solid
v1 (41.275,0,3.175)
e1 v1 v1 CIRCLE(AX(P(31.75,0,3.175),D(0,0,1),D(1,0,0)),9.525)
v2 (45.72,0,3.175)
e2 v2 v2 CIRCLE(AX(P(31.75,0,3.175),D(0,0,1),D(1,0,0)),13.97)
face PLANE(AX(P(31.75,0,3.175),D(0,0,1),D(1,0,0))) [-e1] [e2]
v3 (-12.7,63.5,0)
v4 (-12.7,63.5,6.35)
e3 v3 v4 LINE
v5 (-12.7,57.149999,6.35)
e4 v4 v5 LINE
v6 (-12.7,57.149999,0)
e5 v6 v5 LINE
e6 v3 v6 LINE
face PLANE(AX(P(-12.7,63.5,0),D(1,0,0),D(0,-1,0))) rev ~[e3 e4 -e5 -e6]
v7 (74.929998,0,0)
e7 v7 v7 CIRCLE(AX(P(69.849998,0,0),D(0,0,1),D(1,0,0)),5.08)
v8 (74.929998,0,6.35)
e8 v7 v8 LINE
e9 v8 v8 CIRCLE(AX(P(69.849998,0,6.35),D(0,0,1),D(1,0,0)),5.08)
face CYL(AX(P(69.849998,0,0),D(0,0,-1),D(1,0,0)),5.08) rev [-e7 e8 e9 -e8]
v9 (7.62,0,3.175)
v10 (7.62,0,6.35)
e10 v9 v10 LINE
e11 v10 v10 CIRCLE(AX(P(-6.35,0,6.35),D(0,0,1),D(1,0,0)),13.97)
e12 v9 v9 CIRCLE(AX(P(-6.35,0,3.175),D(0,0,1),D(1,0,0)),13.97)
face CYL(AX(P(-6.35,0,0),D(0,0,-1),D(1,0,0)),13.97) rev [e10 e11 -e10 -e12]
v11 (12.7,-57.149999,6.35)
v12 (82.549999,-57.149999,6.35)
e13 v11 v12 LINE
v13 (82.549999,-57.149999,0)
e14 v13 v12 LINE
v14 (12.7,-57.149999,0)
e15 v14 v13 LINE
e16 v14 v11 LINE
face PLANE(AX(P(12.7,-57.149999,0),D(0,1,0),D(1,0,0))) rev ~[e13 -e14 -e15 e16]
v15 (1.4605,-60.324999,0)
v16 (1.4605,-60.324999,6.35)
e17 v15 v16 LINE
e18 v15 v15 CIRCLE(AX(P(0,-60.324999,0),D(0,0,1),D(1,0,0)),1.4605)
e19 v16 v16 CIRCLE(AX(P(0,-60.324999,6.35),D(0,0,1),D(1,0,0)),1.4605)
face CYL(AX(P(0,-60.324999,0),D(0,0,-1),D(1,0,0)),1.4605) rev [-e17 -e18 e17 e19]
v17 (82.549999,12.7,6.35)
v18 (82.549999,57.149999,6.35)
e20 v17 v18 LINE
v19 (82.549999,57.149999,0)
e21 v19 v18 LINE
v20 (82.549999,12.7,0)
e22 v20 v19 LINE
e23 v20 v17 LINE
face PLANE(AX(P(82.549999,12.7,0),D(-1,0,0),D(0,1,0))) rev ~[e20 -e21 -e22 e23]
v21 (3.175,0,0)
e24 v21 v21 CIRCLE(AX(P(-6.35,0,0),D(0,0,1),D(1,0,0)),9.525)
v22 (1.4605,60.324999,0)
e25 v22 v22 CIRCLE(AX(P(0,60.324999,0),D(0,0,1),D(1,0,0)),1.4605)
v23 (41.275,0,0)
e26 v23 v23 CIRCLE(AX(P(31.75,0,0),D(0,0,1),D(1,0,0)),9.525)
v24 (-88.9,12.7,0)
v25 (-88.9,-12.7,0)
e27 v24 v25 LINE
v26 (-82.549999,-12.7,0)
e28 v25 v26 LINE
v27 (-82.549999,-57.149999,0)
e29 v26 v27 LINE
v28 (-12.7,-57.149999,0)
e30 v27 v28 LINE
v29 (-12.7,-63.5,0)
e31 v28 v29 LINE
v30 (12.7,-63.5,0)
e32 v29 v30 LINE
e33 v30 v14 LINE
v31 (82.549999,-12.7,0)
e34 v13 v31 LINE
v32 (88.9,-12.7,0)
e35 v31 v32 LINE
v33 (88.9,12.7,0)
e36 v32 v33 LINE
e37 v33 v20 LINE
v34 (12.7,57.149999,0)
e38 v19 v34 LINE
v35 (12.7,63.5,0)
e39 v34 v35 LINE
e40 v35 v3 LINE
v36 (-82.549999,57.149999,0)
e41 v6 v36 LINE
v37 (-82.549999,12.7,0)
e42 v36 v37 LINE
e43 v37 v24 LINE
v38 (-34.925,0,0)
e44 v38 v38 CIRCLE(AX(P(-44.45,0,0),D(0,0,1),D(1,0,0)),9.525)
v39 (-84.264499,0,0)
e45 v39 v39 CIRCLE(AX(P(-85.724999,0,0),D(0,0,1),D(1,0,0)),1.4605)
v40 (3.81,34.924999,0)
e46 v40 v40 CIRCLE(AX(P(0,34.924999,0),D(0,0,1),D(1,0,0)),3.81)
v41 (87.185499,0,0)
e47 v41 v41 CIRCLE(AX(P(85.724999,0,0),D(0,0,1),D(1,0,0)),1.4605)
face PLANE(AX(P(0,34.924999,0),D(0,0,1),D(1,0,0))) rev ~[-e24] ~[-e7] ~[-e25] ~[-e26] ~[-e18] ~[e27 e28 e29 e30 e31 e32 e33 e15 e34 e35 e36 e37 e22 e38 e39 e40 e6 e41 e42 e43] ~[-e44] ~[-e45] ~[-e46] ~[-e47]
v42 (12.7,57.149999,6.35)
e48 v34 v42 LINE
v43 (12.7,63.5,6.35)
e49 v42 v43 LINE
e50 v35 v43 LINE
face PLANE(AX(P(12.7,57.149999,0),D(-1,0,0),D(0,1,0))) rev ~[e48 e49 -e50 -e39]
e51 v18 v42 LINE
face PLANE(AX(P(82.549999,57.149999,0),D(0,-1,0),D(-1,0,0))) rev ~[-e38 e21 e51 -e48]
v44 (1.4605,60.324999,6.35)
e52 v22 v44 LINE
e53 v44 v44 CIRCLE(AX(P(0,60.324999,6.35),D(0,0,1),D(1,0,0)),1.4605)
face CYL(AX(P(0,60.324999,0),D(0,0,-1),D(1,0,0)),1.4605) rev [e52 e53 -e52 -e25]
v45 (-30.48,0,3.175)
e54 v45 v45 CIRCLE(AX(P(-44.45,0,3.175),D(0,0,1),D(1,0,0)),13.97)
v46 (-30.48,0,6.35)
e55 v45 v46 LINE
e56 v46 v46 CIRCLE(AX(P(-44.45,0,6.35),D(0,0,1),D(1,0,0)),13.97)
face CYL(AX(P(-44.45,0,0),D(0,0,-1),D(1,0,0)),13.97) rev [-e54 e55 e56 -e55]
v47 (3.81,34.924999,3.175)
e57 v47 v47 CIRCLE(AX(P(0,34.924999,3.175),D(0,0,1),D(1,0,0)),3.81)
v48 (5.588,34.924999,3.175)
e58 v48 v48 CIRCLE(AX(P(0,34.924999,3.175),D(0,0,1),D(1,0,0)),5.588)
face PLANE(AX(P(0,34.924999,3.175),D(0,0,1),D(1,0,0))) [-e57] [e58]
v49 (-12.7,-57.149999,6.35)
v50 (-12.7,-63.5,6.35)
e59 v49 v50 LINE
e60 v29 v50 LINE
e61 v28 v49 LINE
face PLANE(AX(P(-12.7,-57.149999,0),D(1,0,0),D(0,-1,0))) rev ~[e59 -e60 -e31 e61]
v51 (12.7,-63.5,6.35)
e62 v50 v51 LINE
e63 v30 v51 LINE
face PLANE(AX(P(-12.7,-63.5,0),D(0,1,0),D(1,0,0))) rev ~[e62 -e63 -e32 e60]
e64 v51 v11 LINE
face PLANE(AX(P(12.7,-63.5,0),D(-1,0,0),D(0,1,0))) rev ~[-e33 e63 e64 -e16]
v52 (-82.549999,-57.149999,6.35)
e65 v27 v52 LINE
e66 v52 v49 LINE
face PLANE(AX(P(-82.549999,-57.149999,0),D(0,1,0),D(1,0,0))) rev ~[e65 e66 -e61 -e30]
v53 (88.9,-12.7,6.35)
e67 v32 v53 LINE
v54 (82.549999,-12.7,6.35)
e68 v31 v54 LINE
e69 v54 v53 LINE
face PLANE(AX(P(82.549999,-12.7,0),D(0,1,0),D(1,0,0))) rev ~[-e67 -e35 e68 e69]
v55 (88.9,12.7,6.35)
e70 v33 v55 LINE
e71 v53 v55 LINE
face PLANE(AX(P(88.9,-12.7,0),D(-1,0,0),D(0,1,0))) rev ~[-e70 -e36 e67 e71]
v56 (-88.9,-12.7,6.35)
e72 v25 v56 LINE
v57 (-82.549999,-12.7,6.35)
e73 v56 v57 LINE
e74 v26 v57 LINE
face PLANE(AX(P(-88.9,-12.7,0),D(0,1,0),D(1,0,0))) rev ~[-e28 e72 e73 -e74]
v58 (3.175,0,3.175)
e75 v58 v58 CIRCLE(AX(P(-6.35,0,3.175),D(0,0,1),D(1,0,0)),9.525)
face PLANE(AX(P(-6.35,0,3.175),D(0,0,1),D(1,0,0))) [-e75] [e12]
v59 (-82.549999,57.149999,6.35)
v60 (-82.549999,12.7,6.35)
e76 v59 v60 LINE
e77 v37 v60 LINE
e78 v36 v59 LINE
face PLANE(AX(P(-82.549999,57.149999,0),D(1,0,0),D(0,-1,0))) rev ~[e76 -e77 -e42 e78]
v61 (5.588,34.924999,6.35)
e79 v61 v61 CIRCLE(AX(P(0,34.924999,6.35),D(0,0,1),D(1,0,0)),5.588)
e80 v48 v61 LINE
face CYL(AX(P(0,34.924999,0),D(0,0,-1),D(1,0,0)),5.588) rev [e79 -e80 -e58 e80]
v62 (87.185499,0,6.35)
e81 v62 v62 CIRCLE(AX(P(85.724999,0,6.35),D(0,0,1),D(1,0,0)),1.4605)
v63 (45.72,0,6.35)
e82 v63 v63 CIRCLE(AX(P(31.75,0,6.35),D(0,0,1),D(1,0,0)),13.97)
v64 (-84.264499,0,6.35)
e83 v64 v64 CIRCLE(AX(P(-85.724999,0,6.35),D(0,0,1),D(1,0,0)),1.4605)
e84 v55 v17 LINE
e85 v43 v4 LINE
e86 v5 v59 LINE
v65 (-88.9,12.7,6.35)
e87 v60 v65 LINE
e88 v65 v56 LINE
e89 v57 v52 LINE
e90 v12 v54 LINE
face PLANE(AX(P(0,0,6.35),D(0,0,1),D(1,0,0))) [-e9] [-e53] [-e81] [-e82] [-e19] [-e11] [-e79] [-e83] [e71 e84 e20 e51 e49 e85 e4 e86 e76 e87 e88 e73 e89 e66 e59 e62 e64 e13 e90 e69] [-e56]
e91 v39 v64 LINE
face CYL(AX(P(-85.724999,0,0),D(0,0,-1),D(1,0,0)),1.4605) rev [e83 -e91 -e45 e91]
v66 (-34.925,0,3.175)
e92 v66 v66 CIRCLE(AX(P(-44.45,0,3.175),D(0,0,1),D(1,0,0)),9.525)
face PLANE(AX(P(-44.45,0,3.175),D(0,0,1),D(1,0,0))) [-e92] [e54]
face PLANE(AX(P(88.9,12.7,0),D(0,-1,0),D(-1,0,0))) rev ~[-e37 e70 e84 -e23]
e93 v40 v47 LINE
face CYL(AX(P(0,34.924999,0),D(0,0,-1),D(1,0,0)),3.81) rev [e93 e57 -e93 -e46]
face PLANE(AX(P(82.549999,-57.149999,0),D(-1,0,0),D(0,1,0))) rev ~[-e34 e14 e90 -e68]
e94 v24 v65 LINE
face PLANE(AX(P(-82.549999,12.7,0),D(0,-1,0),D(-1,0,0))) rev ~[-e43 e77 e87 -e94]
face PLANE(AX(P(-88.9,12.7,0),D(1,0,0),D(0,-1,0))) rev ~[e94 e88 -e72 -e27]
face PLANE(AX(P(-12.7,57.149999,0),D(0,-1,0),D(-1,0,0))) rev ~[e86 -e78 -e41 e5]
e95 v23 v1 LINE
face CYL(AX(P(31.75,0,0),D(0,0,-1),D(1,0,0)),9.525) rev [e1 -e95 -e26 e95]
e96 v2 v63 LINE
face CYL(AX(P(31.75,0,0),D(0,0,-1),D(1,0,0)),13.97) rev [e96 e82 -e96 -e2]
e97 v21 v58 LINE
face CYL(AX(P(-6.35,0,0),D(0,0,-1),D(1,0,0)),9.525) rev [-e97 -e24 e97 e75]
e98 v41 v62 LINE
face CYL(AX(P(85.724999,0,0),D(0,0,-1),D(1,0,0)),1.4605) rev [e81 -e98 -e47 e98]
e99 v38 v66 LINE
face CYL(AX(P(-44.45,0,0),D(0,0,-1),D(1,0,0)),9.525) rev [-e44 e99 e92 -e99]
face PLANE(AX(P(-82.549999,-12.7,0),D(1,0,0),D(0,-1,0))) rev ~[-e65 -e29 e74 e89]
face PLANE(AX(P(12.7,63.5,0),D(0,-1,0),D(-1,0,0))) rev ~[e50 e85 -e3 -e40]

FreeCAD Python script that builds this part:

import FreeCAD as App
import Part
import Sketcher
from FreeCAD import Vector
Q = App.Units.Quantity


def add_polygon(sketch, points):
    """Adds a closed chain of lines whose ends are joined by coincident constraints."""
    first, n = sketch.GeometryCount, len(points)
    for a, b in zip(points, points[1:] + points[:1]):
        sketch.addGeometry(Part.LineSegment(App.Vector(*a, 0), App.Vector(*b, 0)), False)
    for i in range(n):
        sketch.addConstraint(Sketcher.Constraint("Coincident", first + i, 2, first + (i + 1) % n, 1))

doc = App.newDocument("Part")
body = doc.addObject("PartDesign::Body", "Body")

sketch1 = body.newObject("Sketcher::SketchObject", "Sketch")
sketch1.AttachmentSupport = (doc.getObject("XY_Plane"), [""])
sketch1.MapMode = "FlatFace"
add_polygon(sketch1, [(-12.7, -63.5), (12.7, -63.5), (12.7, -57.1), (82.5, -57.1), (82.5, -12.7), (88.9, -12.7), (88.9, 12.7), (82.5, 12.7), (82.5, 57.1), (12.7, 57.1), (12.7, 63.5), (-12.7, 63.5), (-12.7, 57.1), (-82.5, 57.1), (-82.5, 12.7), (-88.9, 12.7), (-88.9, -12.7), (-82.5, -12.7), (-82.5, -57.1), (-12.7, -57.1)])
sketch1.addGeometry(Part.Circle(Vector(0, -60.3, 0), Vector(0, 0, 1), 1.5), False)
sketch1.addGeometry(Part.Circle(Vector(-85.7, 0, 0), Vector(0, 0, 1), 1.5), False)
sketch1.addGeometry(Part.Circle(Vector(-44.5, 0, 0), Vector(0, 0, 1), 14), False)
sketch1.addGeometry(Part.Circle(Vector(-6.3, 0, 0), Vector(0, 0, 1), 14), False)
sketch1.addGeometry(Part.Circle(Vector(31.8, 0, 0), Vector(0, 0, 1), 14), False)
sketch1.addGeometry(Part.Circle(Vector(69.8, 0, 0), Vector(0, 0, 1), 5.1), False)
sketch1.addGeometry(Part.Circle(Vector(85.7, 0, 0), Vector(0, 0, 1), 1.5), False)
sketch1.addGeometry(Part.Circle(Vector(0, 34.9, 0), Vector(0, 0, 1), 5.6), False)
sketch1.addGeometry(Part.Circle(Vector(0, 60.3, 0), Vector(0, 0, 1), 1.5), False)
sketch1.addConstraint([
    Sketcher.Constraint("Horizontal", 0),
    Sketcher.Constraint("Vertical", 1),
    Sketcher.Constraint("Horizontal", 2),
    Sketcher.Constraint("Vertical", 3),
    Sketcher.Constraint("Horizontal", 4),
    Sketcher.Constraint("Vertical", 5),
    Sketcher.Constraint("Horizontal", 6),
    Sketcher.Constraint("Vertical", 7),
    Sketcher.Constraint("Horizontal", 8),
    Sketcher.Constraint("Vertical", 9),
    Sketcher.Constraint("Horizontal", 10),
    Sketcher.Constraint("Vertical", 11),
    Sketcher.Constraint("Horizontal", 12),
    Sketcher.Constraint("Vertical", 13),
    Sketcher.Constraint("Horizontal", 14),
    Sketcher.Constraint("Vertical", 15),
    Sketcher.Constraint("Horizontal", 16),
    Sketcher.Constraint("Vertical", 17),
    Sketcher.Constraint("Horizontal", 18),
    Sketcher.Constraint("Vertical", 19),
    Sketcher.Constraint("Equal", 20, 21),
    Sketcher.Constraint("Equal", 22, 23),
    Sketcher.Constraint("Equal", 23, 24),
    Sketcher.Constraint("Equal", 21, 26),
    Sketcher.Constraint("Equal", 26, 28),
    Sketcher.Constraint("Symmetric", 21, 3, 26, 3, -1, 1),
    Sketcher.Constraint("Symmetric", 20, 3, 28, 3, -1, 1),
    Sketcher.Constraint("Symmetric", 0, 2, 10, 2, -1, 1),
    Sketcher.Constraint("Symmetric", 2, 2, 12, 2, -1, 1),
    Sketcher.Constraint("Symmetric", 4, 2, 14, 2, -1, 1),
    Sketcher.Constraint("Symmetric", 6, 2, 16, 2, -1, 1),
    Sketcher.Constraint("Symmetric", 8, 2, 18, 2, -1, 1),
    Sketcher.Constraint("Symmetric", 8, 2, 11, 2, -2),
    Sketcher.Constraint("Symmetric", 6, 2, 13, 2, -2),
    Sketcher.Constraint("PointOnObject", 20, 3, -2),
    Sketcher.Constraint("PointOnObject", 21, 3, -1),
    Sketcher.Constraint("PointOnObject", 22, 3, -1),
    Sketcher.Constraint("PointOnObject", 23, 3, -1),
    Sketcher.Constraint("PointOnObject", 24, 3, -1),
    Sketcher.Constraint("PointOnObject", 25, 3, -1),
    Sketcher.Constraint("PointOnObject", 27, 3, -2),
    Sketcher.Constraint("Equal", 16, 1),
    Sketcher.Constraint("Equal", 10, 5),
    Sketcher.Constraint("Diameter", 22, Q("1.1 in")),
    Sketcher.Constraint("Diameter", 25, Q("0.4 in")),
    Sketcher.Constraint("Diameter", 27, Q("0.44 in")),
    Sketcher.Constraint("DistanceX", 0, 1, 0, 2, Q("1 in")),
    Sketcher.Constraint("Diameter", 20, Q("0.115 in")),
    Sketcher.Constraint("DistanceX", 22, 3, 24, 3, Q("3 in")),
    Sketcher.Constraint("DistanceX", 23, 3, 25, 3, Q("2.9999999 in")),
    Sketcher.Constraint("DistanceY", 27, 3, 28, 3, Q("1 in")),
    Sketcher.Constraint("DistanceX", 24, 3, 2, 2, Q("2 in")),
    Sketcher.Constraint("DistanceX", 13, 2, 23, 3, Q("3 in")),
    Sketcher.Constraint("DistanceX", 2, 1, 2, 2, Q("2.75 in")),
    Sketcher.Constraint("DistanceX", 4, 1, 4, 2, Q("0.25 in")),
    Sketcher.Constraint("DistanceY", 3, 1, 3, 2, Q("1.75 in")),
    Sketcher.Constraint("DistanceY", 20, 3, -1, 1, Q("2.375 in")),
    Sketcher.Constraint("DistanceX", 21, 3, -1, 1, Q("3.375 in")),
])
pad1 = body.newObject("PartDesign::Pad", "Pad")
pad1.Profile = sketch1
pad1.Length = Q("0.25 in")

sketch2 = body.newObject("Sketcher::SketchObject", "Sketch001")
sketch2.AttachmentSupport = (doc.getObject("XY_Plane"), [""])
sketch2.MapMode = "FlatFace"
sketch2.addGeometry([
    Part.Circle(Vector(-44, 0, 0), Vector(0, 0, 1), 14),
    Part.Circle(Vector(-44, 0, 0), Vector(0, 0, 1), 10),
    Part.Circle(Vector(-6, 0, 0), Vector(0, 0, 1), 14),
    Part.Circle(Vector(-6, 0, 0), Vector(0, 0, 1), 10),
    Part.Circle(Vector(32, 0, 0), Vector(0, 0, 1), 14),
    Part.Circle(Vector(32, 0, 0), Vector(0, 0, 1), 10),
], False)
sketch2.addConstraint([
    Sketcher.Constraint("Coincident", 1, 3, 0, 3),
    Sketcher.Constraint("Coincident", 3, 3, 2, 3),
    Sketcher.Constraint("Coincident", 5, 3, 4, 3),
    Sketcher.Constraint("Equal", 0, 2),
    Sketcher.Constraint("Equal", 1, 3),
    Sketcher.Constraint("Equal", 2, 4),
    Sketcher.Constraint("Equal", 3, 5),
    Sketcher.Constraint("PointOnObject", 0, 3, -1),
    Sketcher.Constraint("PointOnObject", 2, 3, -1),
    Sketcher.Constraint("PointOnObject", 4, 3, -1),
    Sketcher.Constraint("Diameter", 0, Q("1.1 in")),
    Sketcher.Constraint("Diameter", 1, Q("0.75 in")),
    Sketcher.Constraint("DistanceX", 0, 3, 4, 3, Q("3 in")),
    Sketcher.Constraint("DistanceX", 0, 3, 2, 3, Q("1.5 in")),
    Sketcher.Constraint("DistanceX", 0, 3, -1, 1, Q("1.75 in")),
])
pad2 = body.newObject("PartDesign::Pad", "Pad001")
pad2.Profile = sketch2
pad2.Length = Q("0.125 in")

sketch3 = body.newObject("Sketcher::SketchObject", "Sketch002")
sketch3.AttachmentSupport = (doc.getObject("XY_Plane"), [""])
sketch3.MapMode = "FlatFace"
sketch3.addGeometry([
    Part.Circle(Vector(0, 34.9, 0), Vector(0, 0, 1), 5.6),
    Part.Circle(Vector(0, 34.9, 0), Vector(0, 0, 1), 3.8),
], False)
sketch3.addConstraint([
    Sketcher.Constraint("Coincident", 1, 3, 0, 3),
    Sketcher.Constraint("PointOnObject", 0, 3, -2),
    Sketcher.Constraint("Diameter", 1, Q("0.3 in")),
    Sketcher.Constraint("Diameter", 0, Q("0.44 in")),
    Sketcher.Constraint("DistanceY", -1, 1, 0, 3, Q("1.375 in")),
])
pad3 = body.newObject("PartDesign::Pad", "Pad002")
pad3.Profile = sketch3
pad3.Length = Q("0.125 in")

doc.recompute()
